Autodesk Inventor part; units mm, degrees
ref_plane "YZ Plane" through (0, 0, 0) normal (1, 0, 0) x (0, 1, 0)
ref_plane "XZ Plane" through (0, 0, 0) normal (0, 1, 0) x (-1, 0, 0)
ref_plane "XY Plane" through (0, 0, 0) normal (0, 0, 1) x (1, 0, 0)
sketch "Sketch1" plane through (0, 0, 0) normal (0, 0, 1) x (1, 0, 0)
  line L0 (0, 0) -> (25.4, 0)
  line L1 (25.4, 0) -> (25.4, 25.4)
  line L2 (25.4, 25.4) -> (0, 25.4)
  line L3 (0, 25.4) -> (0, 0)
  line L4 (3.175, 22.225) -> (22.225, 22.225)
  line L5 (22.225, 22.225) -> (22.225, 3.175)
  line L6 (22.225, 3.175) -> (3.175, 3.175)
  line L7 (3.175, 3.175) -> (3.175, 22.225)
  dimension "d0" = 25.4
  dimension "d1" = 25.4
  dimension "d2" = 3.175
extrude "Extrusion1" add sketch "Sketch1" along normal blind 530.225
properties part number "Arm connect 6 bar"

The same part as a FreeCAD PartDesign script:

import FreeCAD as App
import Part
import Sketcher
Q = App.Units.Quantity


def add_polygon(sketch, points):
    """Adds a closed chain of lines whose ends are joined by coincident constraints."""
    first, n = sketch.GeometryCount, len(points)
    for a, b in zip(points, points[1:] + points[:1]):
        sketch.addGeometry(Part.LineSegment(App.Vector(*a, 0), App.Vector(*b, 0)), False)
    for i in range(n):
        sketch.addConstraint(Sketcher.Constraint("Coincident", first + i, 2, first + (i + 1) % n, 1))

doc = App.newDocument("Part")
body = doc.addObject("PartDesign::Body", "Body")

# Sketch on XY plane
sketch1 = body.newObject("Sketcher::SketchObject", "Sketch")
sketch1.AttachmentSupport = (doc.getObject("XY_Plane"), [""])
sketch1.MapMode = "FlatFace"
add_polygon(sketch1, [(0, 25), (0, 0), (25, 0), (25, 25)])  # lines 0-3
add_polygon(sketch1, [(3, 3), (3, 22), (22, 22), (22, 3)])  # lines 4-7
sketch1.addConstraint(Sketcher.Constraint("Vertical", 0))
sketch1.addConstraint(Sketcher.Constraint("Horizontal", 1))
sketch1.addConstraint(Sketcher.Constraint("Vertical", 2))
sketch1.addConstraint(Sketcher.Constraint("Horizontal", 3))
sketch1.addConstraint(Sketcher.Constraint("Vertical", 4))
sketch1.addConstraint(Sketcher.Constraint("Horizontal", 5))
sketch1.addConstraint(Sketcher.Constraint("Vertical", 6))
sketch1.addConstraint(Sketcher.Constraint("Horizontal", 7))
sketch1.addConstraint(Sketcher.Constraint("Coincident", 0, 2, -1, 1))
sketch1.addConstraint(Sketcher.Constraint("Equal", 3, 0))
sketch1.addConstraint(Sketcher.Constraint("Equal", 7, 4))
sketch1.addConstraint(Sketcher.Constraint("DistanceX", 1, 1, 1, 2, Q("1 in")))
sketch1.addConstraint(Sketcher.Constraint("DistanceX", -1, 1, 4, 2, Q("0.125 in")))
sketch1.addConstraint(Sketcher.Constraint("DistanceY", -1, 1, 6, 2, Q("0.125 in")))
sketch1.addConstraint(Sketcher.Constraint("DistanceY", 4, 2, 3, 2, Q("0.125 in")))
pad1 = body.newObject("PartDesign::Pad", "Pad")
pad1.Profile = sketch1
pad1.Length = Q("20.875 in")

doc.recompute()
